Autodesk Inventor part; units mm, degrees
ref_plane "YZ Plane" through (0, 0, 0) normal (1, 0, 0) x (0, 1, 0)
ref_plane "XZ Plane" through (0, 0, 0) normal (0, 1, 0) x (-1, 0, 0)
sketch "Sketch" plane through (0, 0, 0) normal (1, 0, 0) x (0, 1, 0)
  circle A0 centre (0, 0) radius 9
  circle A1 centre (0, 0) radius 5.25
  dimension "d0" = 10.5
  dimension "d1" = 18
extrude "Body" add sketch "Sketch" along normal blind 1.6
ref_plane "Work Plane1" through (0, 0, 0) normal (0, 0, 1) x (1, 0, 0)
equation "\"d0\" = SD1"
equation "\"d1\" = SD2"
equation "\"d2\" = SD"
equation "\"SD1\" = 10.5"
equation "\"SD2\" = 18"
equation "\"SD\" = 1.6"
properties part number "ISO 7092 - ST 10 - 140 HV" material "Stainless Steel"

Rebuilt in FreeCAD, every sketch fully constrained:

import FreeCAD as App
import Part
import Sketcher
Q = App.Units.Quantity

doc = App.newDocument("Part")
body = doc.addObject("PartDesign::Body", "Body")

# Sketch on YZ plane
sketch1 = body.newObject("Sketcher::SketchObject", "Sketch")
sketch1.AttachmentSupport = (doc.getObject("YZ_Plane"), [""])
sketch1.MapMode = "FlatFace"
sketch1.addGeometry(Part.Circle(App.Vector(0, 0, 0), App.Vector(0, 0, 1), 9), False)
sketch1.addGeometry(Part.Circle(App.Vector(0, 0, 0), App.Vector(0, 0, 1), 5.25), False)
sketch1.addConstraint(Sketcher.Constraint("Coincident", 0, 3, -1, 1))
sketch1.addConstraint(Sketcher.Constraint("Coincident", 1, 3, -1, 1))
sketch1.addConstraint(Sketcher.Constraint("Diameter", 0, Q("18 mm")))
sketch1.addConstraint(Sketcher.Constraint("Diameter", 1, Q("10.5 mm")))
pad1 = body.newObject("PartDesign::Pad", "Pad")
pad1.Profile = sketch1
pad1.Length = 1.6

doc.recompute()
